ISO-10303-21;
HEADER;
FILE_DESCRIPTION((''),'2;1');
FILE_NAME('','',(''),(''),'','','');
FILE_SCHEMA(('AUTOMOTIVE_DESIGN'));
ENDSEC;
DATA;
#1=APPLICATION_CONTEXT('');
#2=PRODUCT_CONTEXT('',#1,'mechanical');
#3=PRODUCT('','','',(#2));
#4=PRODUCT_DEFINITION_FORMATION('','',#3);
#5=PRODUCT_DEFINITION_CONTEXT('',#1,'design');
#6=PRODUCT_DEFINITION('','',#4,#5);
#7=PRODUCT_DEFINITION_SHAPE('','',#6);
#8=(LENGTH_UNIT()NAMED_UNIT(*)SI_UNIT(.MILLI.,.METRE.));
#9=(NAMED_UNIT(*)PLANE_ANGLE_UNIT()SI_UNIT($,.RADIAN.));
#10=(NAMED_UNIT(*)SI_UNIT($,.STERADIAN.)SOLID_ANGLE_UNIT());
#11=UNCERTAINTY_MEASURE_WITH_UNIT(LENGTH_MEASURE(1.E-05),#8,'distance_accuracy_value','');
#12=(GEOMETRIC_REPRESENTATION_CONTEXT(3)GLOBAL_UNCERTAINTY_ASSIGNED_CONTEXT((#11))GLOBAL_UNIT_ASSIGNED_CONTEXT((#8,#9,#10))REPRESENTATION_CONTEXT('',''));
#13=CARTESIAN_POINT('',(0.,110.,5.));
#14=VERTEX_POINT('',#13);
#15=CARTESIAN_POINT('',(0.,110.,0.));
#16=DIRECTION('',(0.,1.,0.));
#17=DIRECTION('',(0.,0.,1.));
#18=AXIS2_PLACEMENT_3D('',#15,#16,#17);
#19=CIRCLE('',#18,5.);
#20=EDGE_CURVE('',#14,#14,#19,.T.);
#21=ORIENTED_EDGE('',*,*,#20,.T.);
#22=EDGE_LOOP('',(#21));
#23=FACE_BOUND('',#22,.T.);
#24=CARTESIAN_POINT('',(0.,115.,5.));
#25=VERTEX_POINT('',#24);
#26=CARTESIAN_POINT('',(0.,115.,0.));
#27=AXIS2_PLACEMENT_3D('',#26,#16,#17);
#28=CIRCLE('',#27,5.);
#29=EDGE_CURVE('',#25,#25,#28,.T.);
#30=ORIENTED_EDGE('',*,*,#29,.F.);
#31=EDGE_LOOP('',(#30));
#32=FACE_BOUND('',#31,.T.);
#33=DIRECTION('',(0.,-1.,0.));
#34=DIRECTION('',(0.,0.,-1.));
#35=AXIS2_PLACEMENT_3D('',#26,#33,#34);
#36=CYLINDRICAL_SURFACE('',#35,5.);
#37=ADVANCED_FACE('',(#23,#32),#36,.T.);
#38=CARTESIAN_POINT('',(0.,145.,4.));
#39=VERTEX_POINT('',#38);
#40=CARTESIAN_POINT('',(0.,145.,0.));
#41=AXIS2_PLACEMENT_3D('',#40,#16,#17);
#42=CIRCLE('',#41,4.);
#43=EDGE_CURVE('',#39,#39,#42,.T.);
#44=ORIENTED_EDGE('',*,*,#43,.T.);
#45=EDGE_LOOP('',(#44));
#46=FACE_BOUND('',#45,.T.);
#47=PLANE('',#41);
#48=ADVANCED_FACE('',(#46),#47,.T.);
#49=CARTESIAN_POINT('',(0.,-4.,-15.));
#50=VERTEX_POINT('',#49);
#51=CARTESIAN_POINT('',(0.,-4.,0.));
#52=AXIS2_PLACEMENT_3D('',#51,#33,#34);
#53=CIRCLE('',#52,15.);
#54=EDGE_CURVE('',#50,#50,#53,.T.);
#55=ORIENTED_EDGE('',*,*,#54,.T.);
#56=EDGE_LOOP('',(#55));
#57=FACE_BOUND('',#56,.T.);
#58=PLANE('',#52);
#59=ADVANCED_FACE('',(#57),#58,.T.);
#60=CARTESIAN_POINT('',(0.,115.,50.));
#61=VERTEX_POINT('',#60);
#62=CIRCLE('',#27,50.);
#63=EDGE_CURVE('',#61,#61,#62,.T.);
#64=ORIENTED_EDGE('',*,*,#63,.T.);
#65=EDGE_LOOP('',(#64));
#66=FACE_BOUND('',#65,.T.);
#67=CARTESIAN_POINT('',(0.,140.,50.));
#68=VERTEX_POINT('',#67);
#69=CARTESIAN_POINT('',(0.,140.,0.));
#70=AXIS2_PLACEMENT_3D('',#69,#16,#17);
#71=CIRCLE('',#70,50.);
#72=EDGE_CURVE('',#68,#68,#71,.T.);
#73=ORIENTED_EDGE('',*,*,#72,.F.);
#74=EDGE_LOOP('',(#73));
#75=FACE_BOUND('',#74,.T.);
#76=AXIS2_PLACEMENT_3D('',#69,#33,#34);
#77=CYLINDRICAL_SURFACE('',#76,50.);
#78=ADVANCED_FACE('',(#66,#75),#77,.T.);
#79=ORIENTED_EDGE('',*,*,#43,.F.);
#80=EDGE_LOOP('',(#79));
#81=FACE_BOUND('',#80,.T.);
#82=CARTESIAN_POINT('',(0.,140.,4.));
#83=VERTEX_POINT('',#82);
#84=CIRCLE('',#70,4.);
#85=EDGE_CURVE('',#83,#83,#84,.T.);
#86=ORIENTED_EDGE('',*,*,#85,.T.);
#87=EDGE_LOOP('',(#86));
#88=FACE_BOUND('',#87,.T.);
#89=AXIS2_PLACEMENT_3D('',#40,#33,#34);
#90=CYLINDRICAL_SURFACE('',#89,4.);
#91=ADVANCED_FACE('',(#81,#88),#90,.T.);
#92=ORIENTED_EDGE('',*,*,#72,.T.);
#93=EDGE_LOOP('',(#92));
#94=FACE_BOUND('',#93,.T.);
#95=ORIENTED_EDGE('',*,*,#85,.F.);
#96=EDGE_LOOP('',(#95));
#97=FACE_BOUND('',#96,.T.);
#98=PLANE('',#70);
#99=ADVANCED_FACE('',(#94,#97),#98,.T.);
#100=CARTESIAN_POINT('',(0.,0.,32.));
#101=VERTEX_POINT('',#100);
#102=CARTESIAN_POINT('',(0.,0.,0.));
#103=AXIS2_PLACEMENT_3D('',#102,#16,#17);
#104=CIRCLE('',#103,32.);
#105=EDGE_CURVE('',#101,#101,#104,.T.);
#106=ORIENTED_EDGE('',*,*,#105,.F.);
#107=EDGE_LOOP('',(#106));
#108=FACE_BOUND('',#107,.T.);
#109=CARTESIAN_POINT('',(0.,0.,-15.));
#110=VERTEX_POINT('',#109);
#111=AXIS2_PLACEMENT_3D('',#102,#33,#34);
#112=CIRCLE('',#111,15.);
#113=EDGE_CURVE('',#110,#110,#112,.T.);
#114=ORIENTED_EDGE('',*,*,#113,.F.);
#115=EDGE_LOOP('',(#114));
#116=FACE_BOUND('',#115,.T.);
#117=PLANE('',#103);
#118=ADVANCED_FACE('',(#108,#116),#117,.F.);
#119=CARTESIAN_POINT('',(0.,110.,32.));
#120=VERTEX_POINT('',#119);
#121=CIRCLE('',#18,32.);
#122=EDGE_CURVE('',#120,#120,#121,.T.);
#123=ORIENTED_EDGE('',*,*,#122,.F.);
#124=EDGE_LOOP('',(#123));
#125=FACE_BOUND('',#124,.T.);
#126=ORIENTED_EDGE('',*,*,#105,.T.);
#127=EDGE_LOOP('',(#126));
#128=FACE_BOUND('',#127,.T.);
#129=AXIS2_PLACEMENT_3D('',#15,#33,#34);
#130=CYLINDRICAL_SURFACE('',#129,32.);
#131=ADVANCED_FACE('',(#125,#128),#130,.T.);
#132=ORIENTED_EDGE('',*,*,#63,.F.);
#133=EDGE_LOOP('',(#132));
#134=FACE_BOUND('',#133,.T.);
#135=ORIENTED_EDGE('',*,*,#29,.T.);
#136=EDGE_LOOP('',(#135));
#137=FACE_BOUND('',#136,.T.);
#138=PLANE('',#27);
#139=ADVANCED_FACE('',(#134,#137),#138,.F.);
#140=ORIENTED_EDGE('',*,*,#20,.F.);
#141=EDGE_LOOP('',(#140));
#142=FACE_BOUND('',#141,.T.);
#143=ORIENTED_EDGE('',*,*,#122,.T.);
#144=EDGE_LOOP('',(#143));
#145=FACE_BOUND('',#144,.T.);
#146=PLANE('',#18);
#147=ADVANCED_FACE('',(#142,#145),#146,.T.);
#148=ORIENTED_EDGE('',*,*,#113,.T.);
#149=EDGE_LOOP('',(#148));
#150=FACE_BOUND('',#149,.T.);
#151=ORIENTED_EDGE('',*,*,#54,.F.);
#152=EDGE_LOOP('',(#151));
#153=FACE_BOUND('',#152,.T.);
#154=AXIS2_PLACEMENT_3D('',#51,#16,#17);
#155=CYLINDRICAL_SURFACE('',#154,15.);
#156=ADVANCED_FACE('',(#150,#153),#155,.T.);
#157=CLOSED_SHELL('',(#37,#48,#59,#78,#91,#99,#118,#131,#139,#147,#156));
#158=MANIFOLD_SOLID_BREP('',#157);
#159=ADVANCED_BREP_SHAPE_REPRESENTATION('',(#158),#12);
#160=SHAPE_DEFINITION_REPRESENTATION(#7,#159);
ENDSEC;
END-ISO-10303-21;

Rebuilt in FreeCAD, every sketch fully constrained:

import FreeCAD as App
import Part
import Sketcher
Q = App.Units.Quantity

doc = App.newDocument("Part")
body = doc.addObject("PartDesign::Body", "Body")

# Sketch on XZ plane
sketch1 = body.newObject("Sketcher::SketchObject", "Sketch")
sketch1.AttachmentSupport = (doc.getObject("XZ_Plane"), [""])
sketch1.MapMode = "FlatFace"
sketch1.addGeometry(Part.Circle(App.Vector(0, 0, 0), App.Vector(0, 0, 1), 32), False)
sketch1.addConstraint([
    Sketcher.Constraint("Coincident", 0, 3, -1, 1),
    Sketcher.Constraint("Diameter", 0, Q("64 mm")),
])
pad1 = body.newObject("PartDesign::Pad", "Pad")
pad1.Profile = sketch1
pad1.Length = 110
pad1.Reversed = True

# Sketch on XZ plane
sketch2 = body.newObject("Sketcher::SketchObject", "Sketch001")
sketch2.AttachmentSupport = (doc.getObject("XZ_Plane"), [""])
sketch2.MapMode = "FlatFace"
sketch2.AttachmentOffset = App.Placement(App.Vector(0, 0, -110), App.Rotation())
sketch2.addGeometry(Part.Circle(App.Vector(0, 0, 0), App.Vector(0, 0, 1), 5), False)
sketch2.addConstraint([
    Sketcher.Constraint("Coincident", 0, 3, -1, 1),
    Sketcher.Constraint("Diameter", 0, Q("10 mm")),
])
pad2 = body.newObject("PartDesign::Pad", "Pad001")
pad2.Profile = sketch2
pad2.Length = 5
pad2.Reversed = True

# Sketch on XZ plane
sketch3 = body.newObject("Sketcher::SketchObject", "Sketch002")
sketch3.AttachmentSupport = (doc.getObject("XZ_Plane"), [""])
sketch3.MapMode = "FlatFace"
sketch3.AttachmentOffset = App.Placement(App.Vector(0, 0, -115), App.Rotation())
sketch3.addGeometry(Part.Circle(App.Vector(0, 0, 0), App.Vector(0, 0, 1), 50), False)
sketch3.addConstraint([
    Sketcher.Constraint("Coincident", 0, 3, -1, 1),
    Sketcher.Constraint("Diameter", 0, Q("100 mm")),
])
pad3 = body.newObject("PartDesign::Pad", "Pad002")
pad3.Profile = sketch3
pad3.Length = 25
pad3.Reversed = True

# Sketch on XZ plane
sketch4 = body.newObject("Sketcher::SketchObject", "Sketch003")
sketch4.AttachmentSupport = (doc.getObject("XZ_Plane"), [""])
sketch4.MapMode = "FlatFace"
sketch4.AttachmentOffset = App.Placement(App.Vector(0, 0, -140), App.Rotation())
sketch4.addGeometry(Part.Circle(App.Vector(0, 0, 0), App.Vector(0, 0, 1), 4), False)
sketch4.addConstraint([
    Sketcher.Constraint("Coincident", 0, 3, -1, 1),
    Sketcher.Constraint("Diameter", 0, Q("8 mm")),
])
pad4 = body.newObject("PartDesign::Pad", "Pad003")
pad4.Profile = sketch4
pad4.Length = 5
pad4.Reversed = True

# Sketch on XZ plane
sketch5 = body.newObject("Sketcher::SketchObject", "Sketch004")
sketch5.AttachmentSupport = (doc.getObject("XZ_Plane"), [""])
sketch5.MapMode = "FlatFace"
sketch5.addGeometry(Part.Circle(App.Vector(0, 0, 0), App.Vector(0, 0, 1), 15), False)
sketch5.addConstraint([
    Sketcher.Constraint("Coincident", 0, 3, -1, 1),
    Sketcher.Constraint("Diameter", 0, Q("30 mm")),
])
pad5 = body.newObject("PartDesign::Pad", "Pad004")
pad5.Profile = sketch5
pad5.Length = 4

doc.recompute()
